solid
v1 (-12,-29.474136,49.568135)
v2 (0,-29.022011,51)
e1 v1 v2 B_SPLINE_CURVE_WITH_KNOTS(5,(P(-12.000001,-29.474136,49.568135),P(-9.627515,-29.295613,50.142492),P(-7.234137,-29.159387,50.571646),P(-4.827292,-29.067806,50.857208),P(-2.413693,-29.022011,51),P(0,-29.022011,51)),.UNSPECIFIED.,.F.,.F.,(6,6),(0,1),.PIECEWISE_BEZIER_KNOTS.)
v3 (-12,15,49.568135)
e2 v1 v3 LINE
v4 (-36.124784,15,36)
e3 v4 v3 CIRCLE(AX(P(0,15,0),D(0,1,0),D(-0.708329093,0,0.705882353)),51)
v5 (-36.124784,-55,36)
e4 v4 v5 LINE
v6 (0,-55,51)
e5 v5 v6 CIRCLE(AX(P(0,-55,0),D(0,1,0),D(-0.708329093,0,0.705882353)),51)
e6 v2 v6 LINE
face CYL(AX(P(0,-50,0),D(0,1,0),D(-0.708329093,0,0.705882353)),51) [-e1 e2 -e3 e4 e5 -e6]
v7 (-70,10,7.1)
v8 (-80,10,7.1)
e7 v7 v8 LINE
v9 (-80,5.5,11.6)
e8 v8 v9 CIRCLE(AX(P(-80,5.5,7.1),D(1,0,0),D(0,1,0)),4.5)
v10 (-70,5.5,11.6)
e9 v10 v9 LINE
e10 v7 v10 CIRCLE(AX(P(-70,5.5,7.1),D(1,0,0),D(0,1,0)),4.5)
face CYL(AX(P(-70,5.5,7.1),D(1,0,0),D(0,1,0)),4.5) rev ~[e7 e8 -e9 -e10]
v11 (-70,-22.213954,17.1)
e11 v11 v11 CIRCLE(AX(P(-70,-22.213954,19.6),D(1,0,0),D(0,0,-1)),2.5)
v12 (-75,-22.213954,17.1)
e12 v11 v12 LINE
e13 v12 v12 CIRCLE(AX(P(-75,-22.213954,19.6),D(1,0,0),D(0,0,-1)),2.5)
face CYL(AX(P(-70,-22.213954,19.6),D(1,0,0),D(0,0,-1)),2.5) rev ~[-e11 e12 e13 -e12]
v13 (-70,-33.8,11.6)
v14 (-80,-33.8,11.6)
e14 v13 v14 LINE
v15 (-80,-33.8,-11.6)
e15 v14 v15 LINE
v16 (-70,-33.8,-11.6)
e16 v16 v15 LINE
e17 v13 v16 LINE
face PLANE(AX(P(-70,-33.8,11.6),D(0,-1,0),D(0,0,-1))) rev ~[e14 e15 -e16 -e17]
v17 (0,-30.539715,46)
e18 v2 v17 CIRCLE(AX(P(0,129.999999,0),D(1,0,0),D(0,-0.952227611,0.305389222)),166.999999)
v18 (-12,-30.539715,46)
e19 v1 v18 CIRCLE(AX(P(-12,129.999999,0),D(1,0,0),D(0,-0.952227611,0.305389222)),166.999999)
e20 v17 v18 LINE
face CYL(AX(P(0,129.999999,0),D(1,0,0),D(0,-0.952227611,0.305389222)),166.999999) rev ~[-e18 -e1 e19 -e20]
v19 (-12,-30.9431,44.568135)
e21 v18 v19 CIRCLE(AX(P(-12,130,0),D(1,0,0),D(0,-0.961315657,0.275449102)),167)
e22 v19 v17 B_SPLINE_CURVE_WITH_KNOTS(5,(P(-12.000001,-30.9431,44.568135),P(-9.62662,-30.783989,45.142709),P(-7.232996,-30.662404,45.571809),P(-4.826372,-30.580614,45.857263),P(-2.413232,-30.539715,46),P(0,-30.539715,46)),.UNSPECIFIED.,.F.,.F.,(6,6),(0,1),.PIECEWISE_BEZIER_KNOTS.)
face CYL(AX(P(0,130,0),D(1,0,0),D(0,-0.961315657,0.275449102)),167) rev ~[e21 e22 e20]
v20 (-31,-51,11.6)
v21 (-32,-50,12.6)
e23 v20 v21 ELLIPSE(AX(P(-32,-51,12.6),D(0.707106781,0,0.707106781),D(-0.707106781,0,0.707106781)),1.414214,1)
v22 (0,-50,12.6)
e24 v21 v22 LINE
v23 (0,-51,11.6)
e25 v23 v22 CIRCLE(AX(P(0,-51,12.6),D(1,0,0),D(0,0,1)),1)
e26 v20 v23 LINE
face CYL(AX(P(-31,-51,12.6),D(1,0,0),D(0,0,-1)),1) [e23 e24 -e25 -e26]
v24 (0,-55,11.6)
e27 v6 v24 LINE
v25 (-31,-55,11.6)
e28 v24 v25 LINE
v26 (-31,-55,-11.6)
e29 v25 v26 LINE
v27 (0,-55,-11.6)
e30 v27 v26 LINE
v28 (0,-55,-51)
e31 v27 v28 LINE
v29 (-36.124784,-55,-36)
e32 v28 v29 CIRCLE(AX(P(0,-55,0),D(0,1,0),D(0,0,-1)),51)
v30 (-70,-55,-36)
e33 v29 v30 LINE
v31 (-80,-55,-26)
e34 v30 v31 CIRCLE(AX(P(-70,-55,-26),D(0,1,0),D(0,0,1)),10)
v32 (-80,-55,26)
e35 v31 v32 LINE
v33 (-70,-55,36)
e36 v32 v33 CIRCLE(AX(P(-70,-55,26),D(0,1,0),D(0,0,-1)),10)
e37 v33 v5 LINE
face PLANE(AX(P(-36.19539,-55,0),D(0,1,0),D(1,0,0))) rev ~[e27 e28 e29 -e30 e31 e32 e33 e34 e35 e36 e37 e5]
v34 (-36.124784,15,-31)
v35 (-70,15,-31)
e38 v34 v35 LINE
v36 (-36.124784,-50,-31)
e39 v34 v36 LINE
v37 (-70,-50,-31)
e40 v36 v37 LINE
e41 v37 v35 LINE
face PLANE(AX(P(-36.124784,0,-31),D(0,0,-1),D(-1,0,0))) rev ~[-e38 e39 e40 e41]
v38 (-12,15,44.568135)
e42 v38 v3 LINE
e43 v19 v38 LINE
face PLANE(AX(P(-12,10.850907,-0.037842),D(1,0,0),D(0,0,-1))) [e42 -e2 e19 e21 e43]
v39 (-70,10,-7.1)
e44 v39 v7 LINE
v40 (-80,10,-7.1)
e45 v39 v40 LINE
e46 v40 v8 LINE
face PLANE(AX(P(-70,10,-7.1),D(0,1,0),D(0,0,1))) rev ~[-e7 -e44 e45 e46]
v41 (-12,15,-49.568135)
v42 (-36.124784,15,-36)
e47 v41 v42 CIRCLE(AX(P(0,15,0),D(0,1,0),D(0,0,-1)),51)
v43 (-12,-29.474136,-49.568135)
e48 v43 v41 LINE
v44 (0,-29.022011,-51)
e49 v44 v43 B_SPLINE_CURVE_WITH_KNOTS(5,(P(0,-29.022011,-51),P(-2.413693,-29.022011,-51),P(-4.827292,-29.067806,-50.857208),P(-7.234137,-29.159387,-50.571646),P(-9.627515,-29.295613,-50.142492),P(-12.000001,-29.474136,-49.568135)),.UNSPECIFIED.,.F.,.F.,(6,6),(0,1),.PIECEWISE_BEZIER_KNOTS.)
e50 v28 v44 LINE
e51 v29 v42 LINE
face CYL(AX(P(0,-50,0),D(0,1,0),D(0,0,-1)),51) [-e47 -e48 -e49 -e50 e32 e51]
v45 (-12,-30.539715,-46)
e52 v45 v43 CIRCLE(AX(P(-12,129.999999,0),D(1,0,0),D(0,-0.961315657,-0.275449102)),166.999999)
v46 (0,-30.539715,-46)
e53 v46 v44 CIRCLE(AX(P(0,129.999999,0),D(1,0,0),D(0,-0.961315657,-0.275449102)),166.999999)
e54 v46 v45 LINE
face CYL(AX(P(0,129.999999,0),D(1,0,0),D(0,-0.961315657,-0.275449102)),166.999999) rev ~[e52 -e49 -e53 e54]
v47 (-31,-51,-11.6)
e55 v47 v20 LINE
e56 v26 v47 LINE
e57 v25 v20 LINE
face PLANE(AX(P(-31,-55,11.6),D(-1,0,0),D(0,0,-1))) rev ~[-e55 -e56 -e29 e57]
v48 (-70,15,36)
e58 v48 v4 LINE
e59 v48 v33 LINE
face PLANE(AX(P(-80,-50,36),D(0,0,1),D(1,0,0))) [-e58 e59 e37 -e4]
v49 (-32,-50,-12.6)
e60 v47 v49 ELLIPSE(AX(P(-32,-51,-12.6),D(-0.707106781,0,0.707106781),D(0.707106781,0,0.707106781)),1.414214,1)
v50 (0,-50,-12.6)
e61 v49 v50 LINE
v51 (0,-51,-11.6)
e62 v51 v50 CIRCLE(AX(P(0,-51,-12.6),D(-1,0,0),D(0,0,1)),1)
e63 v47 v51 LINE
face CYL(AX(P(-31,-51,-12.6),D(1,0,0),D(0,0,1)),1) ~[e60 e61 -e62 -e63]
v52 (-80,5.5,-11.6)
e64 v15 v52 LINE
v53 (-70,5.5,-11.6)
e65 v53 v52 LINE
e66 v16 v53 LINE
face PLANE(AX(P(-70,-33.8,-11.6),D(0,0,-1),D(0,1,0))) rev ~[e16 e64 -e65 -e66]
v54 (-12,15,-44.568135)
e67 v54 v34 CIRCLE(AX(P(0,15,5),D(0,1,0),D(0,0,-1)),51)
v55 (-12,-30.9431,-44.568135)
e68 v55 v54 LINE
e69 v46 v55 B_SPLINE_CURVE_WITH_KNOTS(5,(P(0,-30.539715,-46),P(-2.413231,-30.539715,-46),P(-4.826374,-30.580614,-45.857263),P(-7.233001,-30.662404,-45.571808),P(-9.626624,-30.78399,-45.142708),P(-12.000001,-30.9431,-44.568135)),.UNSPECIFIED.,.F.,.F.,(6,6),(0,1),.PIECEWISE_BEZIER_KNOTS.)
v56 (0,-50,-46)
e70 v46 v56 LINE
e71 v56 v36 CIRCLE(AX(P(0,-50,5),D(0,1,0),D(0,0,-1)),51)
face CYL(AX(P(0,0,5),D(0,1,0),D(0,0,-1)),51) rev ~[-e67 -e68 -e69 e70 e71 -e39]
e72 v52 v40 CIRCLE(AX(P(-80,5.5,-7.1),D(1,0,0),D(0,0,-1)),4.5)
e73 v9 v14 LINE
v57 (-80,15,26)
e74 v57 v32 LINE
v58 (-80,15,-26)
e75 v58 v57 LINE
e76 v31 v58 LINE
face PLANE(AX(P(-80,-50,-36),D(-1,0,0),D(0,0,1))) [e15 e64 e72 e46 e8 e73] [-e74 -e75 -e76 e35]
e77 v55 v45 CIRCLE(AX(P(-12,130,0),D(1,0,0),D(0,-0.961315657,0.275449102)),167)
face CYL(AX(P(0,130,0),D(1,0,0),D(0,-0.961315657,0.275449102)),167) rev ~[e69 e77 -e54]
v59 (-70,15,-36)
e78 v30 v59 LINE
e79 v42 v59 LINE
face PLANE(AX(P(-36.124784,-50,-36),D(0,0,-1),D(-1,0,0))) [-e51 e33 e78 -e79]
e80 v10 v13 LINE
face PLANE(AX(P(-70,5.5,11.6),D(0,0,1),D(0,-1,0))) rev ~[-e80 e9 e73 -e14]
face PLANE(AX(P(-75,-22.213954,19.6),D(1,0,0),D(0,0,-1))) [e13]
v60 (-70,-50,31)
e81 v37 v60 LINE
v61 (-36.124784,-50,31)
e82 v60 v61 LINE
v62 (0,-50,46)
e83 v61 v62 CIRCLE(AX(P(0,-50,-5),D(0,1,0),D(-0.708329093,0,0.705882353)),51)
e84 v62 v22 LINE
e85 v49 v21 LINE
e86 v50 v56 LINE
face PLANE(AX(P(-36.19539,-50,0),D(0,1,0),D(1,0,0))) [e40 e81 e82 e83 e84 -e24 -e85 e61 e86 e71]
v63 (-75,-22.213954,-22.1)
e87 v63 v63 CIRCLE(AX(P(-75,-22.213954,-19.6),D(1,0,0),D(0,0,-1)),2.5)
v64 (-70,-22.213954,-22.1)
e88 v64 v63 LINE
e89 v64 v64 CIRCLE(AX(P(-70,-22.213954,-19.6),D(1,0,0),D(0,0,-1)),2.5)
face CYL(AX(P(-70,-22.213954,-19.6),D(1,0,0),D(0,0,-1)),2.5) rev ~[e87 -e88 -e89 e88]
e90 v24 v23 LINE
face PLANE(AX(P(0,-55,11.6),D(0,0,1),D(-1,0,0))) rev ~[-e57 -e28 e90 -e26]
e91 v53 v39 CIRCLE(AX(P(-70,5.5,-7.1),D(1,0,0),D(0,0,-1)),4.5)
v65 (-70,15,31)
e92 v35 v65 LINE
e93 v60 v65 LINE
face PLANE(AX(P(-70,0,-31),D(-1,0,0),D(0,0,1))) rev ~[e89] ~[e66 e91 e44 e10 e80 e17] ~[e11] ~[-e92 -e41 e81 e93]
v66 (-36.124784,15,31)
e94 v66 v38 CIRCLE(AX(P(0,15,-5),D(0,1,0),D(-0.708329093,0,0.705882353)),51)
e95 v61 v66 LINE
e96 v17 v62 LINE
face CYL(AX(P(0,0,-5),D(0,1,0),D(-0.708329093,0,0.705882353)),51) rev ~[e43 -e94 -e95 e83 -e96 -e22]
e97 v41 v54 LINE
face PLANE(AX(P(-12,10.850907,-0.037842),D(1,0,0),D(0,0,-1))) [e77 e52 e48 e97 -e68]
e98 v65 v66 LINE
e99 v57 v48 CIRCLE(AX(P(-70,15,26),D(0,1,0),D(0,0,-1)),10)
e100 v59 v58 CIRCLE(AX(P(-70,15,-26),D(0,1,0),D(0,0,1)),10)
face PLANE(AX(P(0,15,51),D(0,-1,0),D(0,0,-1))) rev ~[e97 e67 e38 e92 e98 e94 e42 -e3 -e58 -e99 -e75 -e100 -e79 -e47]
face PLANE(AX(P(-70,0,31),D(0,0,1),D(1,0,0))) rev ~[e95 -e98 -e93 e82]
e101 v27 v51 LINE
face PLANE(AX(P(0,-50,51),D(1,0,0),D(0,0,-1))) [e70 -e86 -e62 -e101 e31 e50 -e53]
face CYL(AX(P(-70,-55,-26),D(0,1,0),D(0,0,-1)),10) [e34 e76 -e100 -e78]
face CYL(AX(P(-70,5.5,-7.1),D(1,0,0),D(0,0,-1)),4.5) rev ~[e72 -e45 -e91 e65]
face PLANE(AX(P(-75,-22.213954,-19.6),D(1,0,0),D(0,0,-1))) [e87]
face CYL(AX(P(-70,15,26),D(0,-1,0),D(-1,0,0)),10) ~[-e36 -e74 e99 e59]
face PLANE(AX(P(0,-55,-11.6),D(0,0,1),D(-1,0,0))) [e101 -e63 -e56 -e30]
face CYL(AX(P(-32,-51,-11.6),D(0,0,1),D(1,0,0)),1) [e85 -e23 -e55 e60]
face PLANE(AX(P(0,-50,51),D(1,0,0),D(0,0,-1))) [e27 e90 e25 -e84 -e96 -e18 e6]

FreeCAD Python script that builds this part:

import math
import FreeCAD as App
import Part
import Sketcher

V = App.Vector
Q = App.Units.Quantity


def edges_at(feature, points):
    """Names of the edges that pass closest to the given points."""
    edges = feature.Shape.Edges
    near = lambda p: min(range(len(edges)), key=lambda i: edges[i].distToShape(Part.Vertex(*p))[0])
    return sorted({f"Edge{near(p) + 1}" for p in points})

doc = App.newDocument("Part")
body = doc.addObject("PartDesign::Body", "Body")

# Sketch on XZ plane
sketch1 = doc.addObject("Sketcher::SketchObject", "Sketch")
body.addObject(sketch1)
sketch1.AttachmentSupport = (doc.XZ_Plane, [""])
sketch1.MapMode = "FlatFace"
sketch1.addGeometry([
    Part.ArcOfCircle(Part.Circle(V(0, -5, 0), V(0, 0, 1), 51), math.radians(90), math.radians(135)),  # 0
    Part.LineSegment(V(-36, 31, 0), V(-70, 31, 0)),  # 1
    Part.LineSegment(V(-70, 31, 0), V(-70, -31, 0)),  # 2
    Part.LineSegment(V(-70, -31, 0), V(-36, -31, 0)),  # 3
    Part.ArcOfCircle(Part.Circle(V(0, 5, 0), V(0, 0, 1), 51), math.radians(-135), math.radians(-90)),  # 4
    Part.LineSegment(V(0, -46, 0), V(0, -51, 0)),  # 5
    Part.ArcOfCircle(Part.Circle(V(0, 0, 0), V(0, 0, 1), 51), math.radians(-135), math.radians(-90)),  # 6
    Part.LineSegment(V(-36, -36, 0), V(-80, -36, 0)),  # 7
    Part.LineSegment(V(-80, -36, 0), V(-80, 36, 0)),  # 8
    Part.LineSegment(V(-80, 36, 0), V(-36, 36, 0)),  # 9
    Part.ArcOfCircle(Part.Circle(V(0, 0, 0), V(0, 0, 1), 51), math.radians(90), math.radians(135)),  # 10
    Part.LineSegment(V(0, 51, 0), V(0, 46, 0)),  # 11
], False)
sketch1.addConstraint([
    Sketcher.Constraint("Coincident", 0, 2, 1, 1),
    Sketcher.Constraint("Coincident", 1, 2, 2, 1),
    Sketcher.Constraint("Coincident", 2, 2, 3, 1),
    Sketcher.Constraint("Coincident", 3, 2, 4, 1),
    Sketcher.Constraint("Coincident", 4, 2, 5, 1),
    Sketcher.Constraint("Coincident", 5, 2, 6, 2),
    Sketcher.Constraint("Coincident", 6, 1, 7, 1),
    Sketcher.Constraint("Coincident", 7, 2, 8, 1),
    Sketcher.Constraint("Coincident", 8, 2, 9, 1),
    Sketcher.Constraint("Coincident", 9, 2, 10, 2),
    Sketcher.Constraint("Coincident", 10, 1, 11, 1),
    Sketcher.Constraint("Coincident", 11, 2, 0, 1),
    Sketcher.Constraint("Horizontal", 1),
    Sketcher.Constraint("Vertical", 2),
    Sketcher.Constraint("Horizontal", 3),
    Sketcher.Constraint("Vertical", 5),
    Sketcher.Constraint("Horizontal", 7),
    Sketcher.Constraint("Vertical", 8),
    Sketcher.Constraint("Horizontal", 9),
    Sketcher.Constraint("Vertical", 11),
    Sketcher.Constraint("Coincident", 6, 3, -1, 1),
    Sketcher.Constraint("Coincident", 10, 3, -1, 1),
    Sketcher.Constraint("Equal", 0, 4),
    Sketcher.Constraint("Equal", 4, 6),
    Sketcher.Constraint("Equal", 6, 10),
    Sketcher.Constraint("Symmetric", 0, 3, 4, 3, -1, 1),
    Sketcher.Constraint("Symmetric", 0, 2, 3, 2, -1),
    Sketcher.Constraint("PointOnObject", 4, 2, -2),
    Sketcher.Constraint("PointOnObject", 10, 1, -2),
    Sketcher.Constraint("Vertical", 3, 2, 6, 1),
    Sketcher.Constraint("Vertical", 6, 1, 9, 2),
    Sketcher.Constraint("Radius", 0, Q("51 mm")),
    Sketcher.Constraint("DistanceY", 2, 2, 2, 1, Q("62 mm")),
    Sketcher.Constraint("DistanceY", 5, 2, 5, 1, Q("5 mm")),
    Sketcher.Constraint("DistanceX", 1, 2, -1, 1, Q("70 mm")),
    Sketcher.Constraint("DistanceX", 7, 2, -1, 1, Q("80 mm")),
])
pad1 = doc.addObject("PartDesign::Pad", "Pad")
body.addObject(pad1)
pad1.Profile = sketch1
pad1.Length = 100
pad1.Midplane = True

# Sketch on YZ plane
sketch2 = doc.addObject("Sketcher::SketchObject", "Sketch001")
body.addObject(sketch2)
sketch2.AttachmentSupport = (doc.YZ_Plane, [""])
sketch2.MapMode = "FlatFace"
sketch2.AttachmentOffset = App.Placement(V(0, 0, -70), App.Rotation())
sketch2.addGeometry([
    Part.ArcOfCircle(Part.Circle(V(5.5, 7.1, 0), V(0, 0, 1), 4.5), math.radians(0), math.radians(90)),  # 0
    Part.LineSegment(V(5.5, 11.6, 0), V(-33.8, 11.6, 0)),  # 1
    Part.LineSegment(V(-33.8, 11.6, 0), V(-33.8, -11.6, 0)),  # 2
    Part.LineSegment(V(-33.8, -11.6, 0), V(5.5, -11.6, 0)),  # 3
    Part.ArcOfCircle(Part.Circle(V(5.5, -7.1, 0), V(0, 0, 1), 4.5), math.radians(-90), math.radians(0)),  # 4
    Part.LineSegment(V(10, -7.1, 0), V(10, 7.1, 0)),  # 5
], False)
sketch2.addConstraint([
    Sketcher.Constraint("Tangent", 0, 2, 1, 1),
    Sketcher.Constraint("Coincident", 1, 2, 2, 1),
    Sketcher.Constraint("Coincident", 2, 2, 3, 1),
    Sketcher.Constraint("Tangent", 3, 2, 4, 1),
    Sketcher.Constraint("Tangent", 4, 2, 5, 1),
    Sketcher.Constraint("Tangent", 5, 2, 0, 1),
    Sketcher.Constraint("Horizontal", 1),
    Sketcher.Constraint("Vertical", 2),
    Sketcher.Constraint("Horizontal", 3),
    Sketcher.Constraint("Vertical", 5),
    Sketcher.Constraint("Equal", 0, 4),
    Sketcher.Constraint("Radius", 0, Q("4.5 mm")),
    Sketcher.Constraint("DistanceX", 1, 2, 1, 1, Q("39.3 mm")),
    Sketcher.Constraint("DistanceY", 2, 2, 2, 1, Q("23.2 mm")),
    Sketcher.Constraint("DistanceX", -1, 1, 4, 2, Q("10 mm")),
    Sketcher.Constraint("DistanceY", -1, 1, 0, 3, Q("7.1 mm")),
])
pocket1 = doc.addObject("PartDesign::Pocket", "Pocket")
body.addObject(pocket1)
pocket1.Profile = sketch2
pocket1.Length = 10

# Sketch on XZ plane
sketch3 = doc.addObject("Sketcher::SketchObject", "Sketch002")
body.addObject(sketch3)
sketch3.AttachmentSupport = (doc.XZ_Plane, [""])
sketch3.MapMode = "FlatFace"
sketch3.AttachmentOffset = App.Placement(V(0, 0, 50), App.Rotation())
sketch3.addGeometry([
    Part.LineSegment(V(0, 51, 0), V(0, -51, 0)),  # 0
    Part.ArcOfCircle(Part.Circle(V(0, 0, 0), V(0, 0, 1), 51), math.radians(-135), math.radians(-90)),  # 1
    Part.LineSegment(V(-36, -36, 0), V(-80, -36, 0)),  # 2
    Part.LineSegment(V(-80, -36, 0), V(-80, 36, 0)),  # 3
    Part.LineSegment(V(-80, 36, 0), V(-36, 36, 0)),  # 4
    Part.ArcOfCircle(Part.Circle(V(0, 0, 0), V(0, 0, 1), 51), math.radians(90), math.radians(135)),  # 5
], False)
sketch3.addConstraint([
    Sketcher.Constraint("Coincident", 0, 2, 1, 2),
    Sketcher.Constraint("Coincident", 1, 1, 2, 1),
    Sketcher.Constraint("Coincident", 2, 2, 3, 1),
    Sketcher.Constraint("Coincident", 3, 2, 4, 1),
    Sketcher.Constraint("Coincident", 4, 2, 5, 2),
    Sketcher.Constraint("Coincident", 5, 1, 0, 1),
    Sketcher.Constraint("Vertical", 0),
    Sketcher.Constraint("Horizontal", 2),
    Sketcher.Constraint("Vertical", 3),
    Sketcher.Constraint("Horizontal", 4),
    Sketcher.Constraint("Coincident", 1, 3, -1, 1),
    Sketcher.Constraint("Coincident", 5, 3, -1, 1),
    Sketcher.Constraint("Equal", 1, 5),
    Sketcher.Constraint("PointOnObject", 0, 2, -2),
    Sketcher.Constraint("Vertical", 1, 1, 4, 2),
    Sketcher.Constraint("Radius", 1, Q("51 mm")),
    Sketcher.Constraint("DistanceY", 3, 1, 3, 2, Q("72 mm")),
    Sketcher.Constraint("DistanceX", 2, 2, -1, 1, Q("80 mm")),
])
pad2 = doc.addObject("PartDesign::Pad", "Pad001")
body.addObject(pad2)
pad2.Profile = sketch3
pad2.Length = 5

# Sketch on YZ plane
sketch4 = doc.addObject("Sketcher::SketchObject", "Sketch003")
body.addObject(sketch4)
sketch4.AttachmentSupport = (doc.YZ_Plane, [""])
sketch4.MapMode = "FlatFace"
sketch4.addGeometry([
    Part.LineSegment(V(50, 51, 0), V(15, 51, 0)),
    Part.LineSegment(V(15, 51, 0), V(15, -51, 0)),
    Part.LineSegment(V(15, -51, 0), V(50, -51, 0)),
    Part.LineSegment(V(50, -51, 0), V(50, 51, 0)),
], False)
sketch4.addConstraint([
    Sketcher.Constraint("Coincident", 0, 2, 1, 1),
    Sketcher.Constraint("Coincident", 1, 2, 2, 1),
    Sketcher.Constraint("Coincident", 2, 2, 3, 1),
    Sketcher.Constraint("Coincident", 3, 2, 0, 1),
    Sketcher.Constraint("Horizontal", 0),
    Sketcher.Constraint("Vertical", 1),
    Sketcher.Constraint("Horizontal", 2),
    Sketcher.Constraint("Vertical", 3),
    Sketcher.Constraint("DistanceX", 0, 2, 0, 1, Q("35 mm")),
    Sketcher.Constraint("DistanceY", 1, 2, 1, 1, Q("102 mm")),
    Sketcher.Constraint("DistanceX", -1, 1, 0, 2, Q("15 mm")),
    Sketcher.Constraint("DistanceY", -1, 1, 0, 2, Q("51 mm")),
])
pocket2 = doc.addObject("PartDesign::Pocket", "Pocket001")
body.addObject(pocket2)
pocket2.Profile = sketch4
pocket2.Type = "ThroughAll"

# Sketch on YZ plane
sketch5 = doc.addObject("Sketcher::SketchObject", "Sketch004")
body.addObject(sketch5)
sketch5.AttachmentSupport = (doc.YZ_Plane, [""])
sketch5.MapMode = "FlatFace"
sketch5.AttachmentOffset = App.Placement(V(0, 0, -70), App.Rotation())
sketch5.addGeometry([
    Part.Circle(V(-22.2, 19.6, 0), V(0, 0, 1), 2.5),
    Part.Circle(V(-22.2, -19.6, 0), V(0, 0, 1), 2.5),
], False)
sketch5.addConstraint([
    Sketcher.Constraint("Equal", 0, 1),
    Sketcher.Constraint("Symmetric", 0, 3, 1, 3, -1),
    Sketcher.Constraint("Diameter", 0, Q("5 mm")),
    Sketcher.Constraint("DistanceY", -1, 1, 0, 3, Q("19.6 mm")),
    Sketcher.Constraint("DistanceX", 0, 3, -1, 1, Q("22.213954 mm")),
])
pocket3 = doc.addObject("PartDesign::Pocket", "Pocket002")
body.addObject(pocket3)
pocket3.Profile = sketch5
pocket3.Length = 5

# Sketch on YZ plane
sketch6 = doc.addObject("Sketcher::SketchObject", "Sketch005")
body.addObject(sketch6)
sketch6.AttachmentSupport = (doc.YZ_Plane, [""])
sketch6.MapMode = "FlatFace"
sketch6.addGeometry([
    Part.LineSegment(V(33, -136, 0), V(66, -85, 0)),  # 0
    Part.ArcOfCircle(Part.Circle(V(130, 0, 0), V(0, 0, 1), 107), math.radians(-152), math.radians(-127)),  # 1
    Part.ArcOfCircle(Part.Circle(V(130, 0, 0), V(0, 0, 1), 107), math.radians(136), math.radians(208)),  # 2
    Part.ArcOfCircle(Part.Circle(V(130, 0, 0), V(0, 0, 1), 107), math.radians(127.02), math.radians(136.5)),  # 3
    Part.LineSegment(V(66, 85, 0), V(33, 136, 0)),  # 4
    Part.ArcOfCircle(Part.Circle(V(130, 0, 0), V(0, 0, 1), 167), math.radians(125), math.radians(162)),  # 5
    Part.ArcOfCircle(Part.Circle(V(130, 0, 0), V(0, 0, 1), 167), math.radians(162.22), math.radians(164.01)),  # 6
    Part.ArcOfCircle(Part.Circle(V(130, 0, 0), V(0, 0, 1), 167), math.radians(164), math.radians(196)),  # 7
    Part.ArcOfCircle(Part.Circle(V(130, 0, 0), V(0, 0, 1), 167), math.radians(-164.01), math.radians(-162.22)),  # 8
    Part.ArcOfCircle(Part.Circle(V(130, 0, 0), V(0, 0, 1), 167), math.radians(-162), math.radians(-125)),  # 9
], False)
sketch6.addConstraint([
    Sketcher.Constraint("Coincident", 0, 2, 1, 2),
    Sketcher.Constraint("Tangent", 1, 1, 2, 2),
    Sketcher.Constraint("Tangent", 2, 1, 3, 2),
    Sketcher.Constraint("Coincident", 3, 1, 4, 1),
    Sketcher.Constraint("Coincident", 4, 2, 5, 1),
    Sketcher.Constraint("Tangent", 5, 2, 6, 1),
    Sketcher.Constraint("Tangent", 6, 2, 7, 1),
    Sketcher.Constraint("Tangent", 7, 2, 8, 1),
    Sketcher.Constraint("Tangent", 8, 2, 9, 1),
    Sketcher.Constraint("Coincident", 9, 2, 0, 1),
    Sketcher.Constraint("Coincident", 3, 3, 1, 3),
    Sketcher.Constraint("Coincident", 5, 3, 1, 3),
    Sketcher.Constraint("Coincident", 7, 3, 1, 3),
    Sketcher.Constraint("Coincident", 9, 3, 1, 3),
    Sketcher.Constraint("Symmetric", 0, 2, 3, 1, -1),
    Sketcher.Constraint("Vertical", 6, 2, 7, 2),
    Sketcher.Constraint("Vertical", 5, 2, 8, 2),
    Sketcher.Constraint("Vertical", 4, 2, 9, 2),
    Sketcher.Constraint("Radius", 5, Q("167 mm")),
    Sketcher.Constraint("DistanceX", -1, 1, 1, 3, Q("130 mm")),
    Sketcher.Constraint("DistanceY", -1, 1, 5, 2, Q("51 mm")),
    Sketcher.Constraint("DistanceY", -1, 1, 6, 2, Q("46 mm")),
    Sketcher.Constraint("Radius", 1, Q("106.794507 mm")),
    Sketcher.Constraint("DistanceX", 4, 2, 6, 3, Q("96.513302 mm")),
    Sketcher.Constraint("DistanceY", 1, 1, -1, 1, Q("49.552191 mm")),
    Sketcher.Constraint("DistanceX", -1, 1, 2, 1, Q("52.53484 mm")),
    Sketcher.Constraint("DistanceX", 0, 2, 8, 3, Q("64.305981 mm")),
])
pocket4 = doc.addObject("PartDesign::Pocket", "Pocket003")
body.addObject(pocket4)
pocket4.Profile = sketch6
pocket4.Length = 12
doc.recompute()

fillet = doc.addObject("PartDesign::Fillet", "Fillet")
body.addObject(fillet)
fillet.Base = (pocket4, edges_at(pocket4, [(-80, -20, 36), (-80, -20, -36)]))
fillet.Radius = 10

# Sketch on XZ plane
sketch7 = doc.addObject("Sketcher::SketchObject", "Sketch006")
body.addObject(sketch7)
sketch7.AttachmentSupport = (doc.XZ_Plane, [""])
sketch7.MapMode = "FlatFace"
sketch7.AttachmentOffset = App.Placement(V(0, 0, 55), App.Rotation())
sketch7.addGeometry([
    Part.LineSegment(V(0, -12, 0), V(0, 12, 0)),
    Part.LineSegment(V(0, 12, 0), V(-31, 12, 0)),
    Part.LineSegment(V(-31, 12, 0), V(-31, -12, 0)),
    Part.LineSegment(V(-31, -12, 0), V(0, -12, 0)),
], False)
sketch7.addConstraint([
    Sketcher.Constraint("Coincident", 0, 2, 1, 1),
    Sketcher.Constraint("Coincident", 1, 2, 2, 1),
    Sketcher.Constraint("Coincident", 2, 2, 3, 1),
    Sketcher.Constraint("Coincident", 3, 2, 0, 1),
    Sketcher.Constraint("Vertical", 0),
    Sketcher.Constraint("Horizontal", 1),
    Sketcher.Constraint("Vertical", 2),
    Sketcher.Constraint("Horizontal", 3),
    Sketcher.Constraint("Symmetric", 0, 2, 3, 2, -1, 1),
    Sketcher.Constraint("DistanceX", 1, 2, 1, 1, Q("31 mm")),
    Sketcher.Constraint("DistanceY", 0, 1, 0, 2, Q("23.2 mm")),
])
pocket5 = doc.addObject("PartDesign::Pocket", "Pocket004")
body.addObject(pocket5)
pocket5.Profile = sketch7
pocket5.Length = 10
doc.recompute()

fillet2 = doc.addObject("PartDesign::Fillet", "Fillet001")
body.addObject(fillet2)
fillet2.Base = (pocket5, edges_at(pocket5, [(-15.5, -50, -11.6), (-31, -50, 0), (-15.5, -50, 11.6)]))
fillet2.Radius = 1

doc.recompute()
